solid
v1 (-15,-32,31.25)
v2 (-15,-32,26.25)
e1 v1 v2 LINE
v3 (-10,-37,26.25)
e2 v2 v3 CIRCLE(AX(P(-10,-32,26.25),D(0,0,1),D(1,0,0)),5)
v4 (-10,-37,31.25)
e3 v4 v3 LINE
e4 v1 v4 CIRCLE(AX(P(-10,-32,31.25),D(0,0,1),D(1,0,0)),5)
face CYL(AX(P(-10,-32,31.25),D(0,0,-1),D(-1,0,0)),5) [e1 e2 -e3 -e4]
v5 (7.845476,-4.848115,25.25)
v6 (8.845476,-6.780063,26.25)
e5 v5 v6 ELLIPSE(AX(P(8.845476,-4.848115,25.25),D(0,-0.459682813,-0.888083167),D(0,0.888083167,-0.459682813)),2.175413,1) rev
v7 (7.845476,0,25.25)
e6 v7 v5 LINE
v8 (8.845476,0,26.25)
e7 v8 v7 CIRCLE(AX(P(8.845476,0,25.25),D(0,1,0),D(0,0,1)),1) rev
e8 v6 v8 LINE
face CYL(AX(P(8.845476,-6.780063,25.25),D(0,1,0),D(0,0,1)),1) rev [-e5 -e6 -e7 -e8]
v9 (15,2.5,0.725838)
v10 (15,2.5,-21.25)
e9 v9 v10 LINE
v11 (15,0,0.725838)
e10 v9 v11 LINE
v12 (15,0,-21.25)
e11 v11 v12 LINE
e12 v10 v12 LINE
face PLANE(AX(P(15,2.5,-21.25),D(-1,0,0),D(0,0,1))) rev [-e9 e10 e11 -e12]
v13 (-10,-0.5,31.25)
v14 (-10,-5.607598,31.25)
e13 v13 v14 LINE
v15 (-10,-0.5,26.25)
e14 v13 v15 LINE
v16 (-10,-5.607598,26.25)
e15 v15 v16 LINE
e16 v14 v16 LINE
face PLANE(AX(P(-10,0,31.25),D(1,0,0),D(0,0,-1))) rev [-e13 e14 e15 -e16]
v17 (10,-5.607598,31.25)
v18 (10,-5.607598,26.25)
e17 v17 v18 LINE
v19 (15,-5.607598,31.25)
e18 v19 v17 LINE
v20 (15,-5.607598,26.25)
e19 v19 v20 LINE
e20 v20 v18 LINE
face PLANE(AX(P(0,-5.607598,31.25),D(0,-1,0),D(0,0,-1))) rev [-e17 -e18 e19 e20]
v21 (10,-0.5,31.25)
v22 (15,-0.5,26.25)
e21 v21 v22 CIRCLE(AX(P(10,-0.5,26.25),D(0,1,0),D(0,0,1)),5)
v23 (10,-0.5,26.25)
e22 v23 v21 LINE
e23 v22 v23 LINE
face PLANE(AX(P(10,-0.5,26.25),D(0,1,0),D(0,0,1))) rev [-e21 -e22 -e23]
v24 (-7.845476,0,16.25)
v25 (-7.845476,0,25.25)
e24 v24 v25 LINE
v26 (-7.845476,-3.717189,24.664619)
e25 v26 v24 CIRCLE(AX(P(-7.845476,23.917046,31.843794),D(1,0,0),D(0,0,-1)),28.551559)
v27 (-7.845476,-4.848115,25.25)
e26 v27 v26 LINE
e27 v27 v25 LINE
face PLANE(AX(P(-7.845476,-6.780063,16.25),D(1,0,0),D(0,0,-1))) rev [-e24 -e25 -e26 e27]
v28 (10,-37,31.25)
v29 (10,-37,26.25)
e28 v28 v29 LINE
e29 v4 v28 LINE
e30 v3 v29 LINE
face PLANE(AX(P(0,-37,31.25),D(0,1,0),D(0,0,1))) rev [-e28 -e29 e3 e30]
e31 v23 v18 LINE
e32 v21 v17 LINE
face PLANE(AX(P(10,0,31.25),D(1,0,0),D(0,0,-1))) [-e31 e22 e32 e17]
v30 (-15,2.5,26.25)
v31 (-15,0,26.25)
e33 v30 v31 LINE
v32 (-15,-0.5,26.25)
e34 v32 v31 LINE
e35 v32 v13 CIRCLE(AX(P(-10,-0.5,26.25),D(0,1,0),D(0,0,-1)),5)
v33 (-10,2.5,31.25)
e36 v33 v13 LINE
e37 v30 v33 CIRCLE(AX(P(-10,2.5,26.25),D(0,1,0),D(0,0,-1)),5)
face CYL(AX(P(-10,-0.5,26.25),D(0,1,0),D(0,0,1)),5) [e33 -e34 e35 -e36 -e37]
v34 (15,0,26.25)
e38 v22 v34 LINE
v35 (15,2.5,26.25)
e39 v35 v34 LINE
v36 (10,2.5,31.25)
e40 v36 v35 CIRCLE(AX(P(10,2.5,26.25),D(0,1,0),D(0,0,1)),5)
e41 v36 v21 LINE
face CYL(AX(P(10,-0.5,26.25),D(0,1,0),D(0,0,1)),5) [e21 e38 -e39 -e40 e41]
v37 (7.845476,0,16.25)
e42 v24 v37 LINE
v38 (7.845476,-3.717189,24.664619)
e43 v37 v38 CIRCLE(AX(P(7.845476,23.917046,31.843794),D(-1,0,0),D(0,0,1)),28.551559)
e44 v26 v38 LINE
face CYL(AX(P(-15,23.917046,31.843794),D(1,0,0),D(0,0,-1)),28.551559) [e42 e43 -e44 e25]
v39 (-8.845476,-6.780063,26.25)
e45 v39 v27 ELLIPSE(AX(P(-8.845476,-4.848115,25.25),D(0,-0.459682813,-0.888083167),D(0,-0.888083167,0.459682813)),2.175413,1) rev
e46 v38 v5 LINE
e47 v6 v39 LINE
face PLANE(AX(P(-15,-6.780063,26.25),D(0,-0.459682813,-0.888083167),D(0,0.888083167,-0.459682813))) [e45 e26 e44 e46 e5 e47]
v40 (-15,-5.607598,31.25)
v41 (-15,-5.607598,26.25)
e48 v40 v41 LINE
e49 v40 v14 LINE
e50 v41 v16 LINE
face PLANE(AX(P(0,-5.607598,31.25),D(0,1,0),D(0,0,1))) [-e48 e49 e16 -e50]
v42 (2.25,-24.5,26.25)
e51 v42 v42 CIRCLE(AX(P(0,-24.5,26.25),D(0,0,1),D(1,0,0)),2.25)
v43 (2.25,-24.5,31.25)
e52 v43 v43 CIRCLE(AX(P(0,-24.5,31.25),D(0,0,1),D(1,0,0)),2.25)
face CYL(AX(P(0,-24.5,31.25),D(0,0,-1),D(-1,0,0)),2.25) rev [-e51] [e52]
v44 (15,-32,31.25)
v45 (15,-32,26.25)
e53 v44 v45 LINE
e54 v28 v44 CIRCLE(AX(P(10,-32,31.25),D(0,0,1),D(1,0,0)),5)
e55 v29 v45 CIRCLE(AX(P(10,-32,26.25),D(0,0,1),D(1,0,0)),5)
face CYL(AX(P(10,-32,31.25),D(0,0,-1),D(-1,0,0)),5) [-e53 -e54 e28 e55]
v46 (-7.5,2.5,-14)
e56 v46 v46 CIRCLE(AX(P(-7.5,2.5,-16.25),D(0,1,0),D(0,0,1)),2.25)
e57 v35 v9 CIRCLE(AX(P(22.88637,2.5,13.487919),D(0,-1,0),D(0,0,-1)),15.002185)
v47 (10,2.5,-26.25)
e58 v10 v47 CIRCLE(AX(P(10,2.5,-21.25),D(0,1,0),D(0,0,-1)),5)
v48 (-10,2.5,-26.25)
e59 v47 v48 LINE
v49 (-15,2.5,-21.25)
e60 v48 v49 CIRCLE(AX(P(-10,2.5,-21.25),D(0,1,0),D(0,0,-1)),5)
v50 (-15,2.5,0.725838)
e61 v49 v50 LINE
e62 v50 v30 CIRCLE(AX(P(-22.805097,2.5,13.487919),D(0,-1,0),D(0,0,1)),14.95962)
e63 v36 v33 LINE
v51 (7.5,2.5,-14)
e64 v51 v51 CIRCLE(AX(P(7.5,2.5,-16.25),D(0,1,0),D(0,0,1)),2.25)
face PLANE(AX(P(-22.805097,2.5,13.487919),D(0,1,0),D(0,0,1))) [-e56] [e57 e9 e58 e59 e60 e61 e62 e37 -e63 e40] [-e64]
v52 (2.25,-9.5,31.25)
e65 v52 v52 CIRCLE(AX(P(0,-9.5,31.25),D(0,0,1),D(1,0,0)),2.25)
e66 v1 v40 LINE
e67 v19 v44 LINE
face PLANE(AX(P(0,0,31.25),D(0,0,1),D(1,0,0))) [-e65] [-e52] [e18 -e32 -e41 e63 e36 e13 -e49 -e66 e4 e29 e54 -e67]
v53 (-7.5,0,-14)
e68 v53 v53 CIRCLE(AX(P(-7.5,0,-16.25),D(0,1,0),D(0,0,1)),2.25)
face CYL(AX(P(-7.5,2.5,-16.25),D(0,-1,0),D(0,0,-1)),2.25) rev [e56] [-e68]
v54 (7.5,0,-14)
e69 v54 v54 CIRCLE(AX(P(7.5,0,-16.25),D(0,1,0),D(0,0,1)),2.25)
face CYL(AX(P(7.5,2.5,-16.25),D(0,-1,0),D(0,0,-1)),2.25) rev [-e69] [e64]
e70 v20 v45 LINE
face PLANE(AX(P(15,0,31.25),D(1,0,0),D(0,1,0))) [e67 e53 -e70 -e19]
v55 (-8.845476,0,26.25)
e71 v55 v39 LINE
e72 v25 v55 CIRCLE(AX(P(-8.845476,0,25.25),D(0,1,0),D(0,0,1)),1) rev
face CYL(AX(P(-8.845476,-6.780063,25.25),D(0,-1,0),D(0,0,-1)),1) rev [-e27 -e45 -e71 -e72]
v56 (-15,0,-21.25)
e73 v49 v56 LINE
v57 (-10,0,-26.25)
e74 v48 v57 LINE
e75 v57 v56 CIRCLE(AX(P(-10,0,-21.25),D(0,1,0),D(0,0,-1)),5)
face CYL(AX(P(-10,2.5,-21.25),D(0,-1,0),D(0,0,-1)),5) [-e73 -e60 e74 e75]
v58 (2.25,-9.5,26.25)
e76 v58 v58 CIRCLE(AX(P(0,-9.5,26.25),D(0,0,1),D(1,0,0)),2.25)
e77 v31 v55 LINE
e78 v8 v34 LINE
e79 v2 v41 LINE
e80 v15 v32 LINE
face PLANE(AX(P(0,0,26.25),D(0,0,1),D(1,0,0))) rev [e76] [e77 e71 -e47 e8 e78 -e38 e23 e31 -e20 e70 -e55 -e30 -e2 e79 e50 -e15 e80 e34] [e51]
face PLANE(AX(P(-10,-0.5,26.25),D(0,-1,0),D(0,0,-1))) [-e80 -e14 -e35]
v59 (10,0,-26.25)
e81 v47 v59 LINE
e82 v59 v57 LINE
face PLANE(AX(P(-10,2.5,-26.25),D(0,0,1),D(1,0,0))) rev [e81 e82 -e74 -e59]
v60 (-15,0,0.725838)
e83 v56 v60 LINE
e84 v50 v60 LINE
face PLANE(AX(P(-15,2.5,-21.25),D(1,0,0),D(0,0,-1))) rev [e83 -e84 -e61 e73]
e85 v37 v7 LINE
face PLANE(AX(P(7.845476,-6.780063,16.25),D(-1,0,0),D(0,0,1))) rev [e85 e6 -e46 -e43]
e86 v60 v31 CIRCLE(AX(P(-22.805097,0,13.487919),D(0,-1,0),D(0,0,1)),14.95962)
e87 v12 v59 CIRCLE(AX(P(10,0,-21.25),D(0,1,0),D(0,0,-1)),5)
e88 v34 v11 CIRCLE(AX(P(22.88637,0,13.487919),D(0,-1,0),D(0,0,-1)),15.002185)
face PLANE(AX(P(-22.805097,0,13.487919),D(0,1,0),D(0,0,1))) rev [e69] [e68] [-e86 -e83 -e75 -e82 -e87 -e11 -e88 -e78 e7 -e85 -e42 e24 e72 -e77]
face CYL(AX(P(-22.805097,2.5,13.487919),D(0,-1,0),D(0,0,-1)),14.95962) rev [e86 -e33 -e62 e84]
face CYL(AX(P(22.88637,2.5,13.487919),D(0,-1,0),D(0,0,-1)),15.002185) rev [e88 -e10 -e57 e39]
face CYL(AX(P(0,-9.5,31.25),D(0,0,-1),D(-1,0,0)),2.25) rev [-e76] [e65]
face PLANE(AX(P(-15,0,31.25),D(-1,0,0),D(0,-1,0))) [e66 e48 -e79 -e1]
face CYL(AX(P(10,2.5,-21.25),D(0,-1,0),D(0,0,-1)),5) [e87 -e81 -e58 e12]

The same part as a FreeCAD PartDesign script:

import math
import FreeCAD as App
import Part
import Sketcher

V = App.Vector
Q = App.Units.Quantity


def edges_at(feature, points):
    """Names of the edges that pass closest to the given points."""
    edges = feature.Shape.Edges
    near = lambda p: min(range(len(edges)), key=lambda i: edges[i].distToShape(Part.Vertex(*p))[0])
    return sorted({f"Edge{near(p) + 1}" for p in points})


def add_polygon(sketch, points):
    """Adds a closed chain of lines whose ends are joined by coincident constraints."""
    first, n = sketch.GeometryCount, len(points)
    for a, b in zip(points, points[1:] + points[:1]):
        sketch.addGeometry(Part.LineSegment(App.Vector(*a, 0), App.Vector(*b, 0)), False)
    for i in range(n):
        sketch.addConstraint(Sketcher.Constraint("Coincident", first + i, 2, first + (i + 1) % n, 1))

doc = App.newDocument("Part")
body = doc.addObject("PartDesign::Body", "Body")

# Sketch on XZ plane
sketch1 = body.newObject("Sketcher::SketchObject", "Sketch")
sketch1.AttachmentSupport = (doc.getObject("XZ_Plane"), [""])
sketch1.MapMode = "FlatFace"
sketch1.addGeometry([
    Part.LineSegment(V(15, 0.7, 0), V(15, -21.2, 0)),  # 0
    Part.ArcOfCircle(Part.Circle(V(10, -21.2, 0), V(0, 0, 1), 5), math.radians(-90), math.radians(0)),  # 1
    Part.LineSegment(V(10, -26.2, 0), V(-10, -26.2, 0)),  # 2
    Part.ArcOfCircle(Part.Circle(V(-10, -21.2, 0), V(0, 0, 1), 5), math.radians(180), math.radians(270)),  # 3
    Part.LineSegment(V(-15, -21.2, 0), V(-15, 0.7, 0)),  # 4
    Part.ArcOfCircle(Part.Circle(V(-22.8, 13.5, 0), V(0, 0, 1), 15), math.radians(-59), math.radians(59)),  # 5
    Part.LineSegment(V(-15, 26.2, 0), V(15, 26.2, 0)),  # 6
    Part.ArcOfCircle(Part.Circle(V(22.9, 13.5, 0), V(0, 0, 1), 15), math.radians(122), math.radians(238)),  # 7
    Part.Circle(V(7.5, -16.2, 0), V(0, 0, 1), 2.2),  # 8
    Part.Circle(V(-7.5, -16.2, 0), V(0, 0, 1), 2.2),  # 9
], False)
sketch1.addConstraint([
    Sketcher.Constraint("Tangent", 0, 2, 1, 2),
    Sketcher.Constraint("Tangent", 1, 1, 2, 1),
    Sketcher.Constraint("Tangent", 2, 2, 3, 2),
    Sketcher.Constraint("Tangent", 3, 1, 4, 1),
    Sketcher.Constraint("Coincident", 4, 2, 5, 1),
    Sketcher.Constraint("Coincident", 5, 2, 6, 1),
    Sketcher.Constraint("Coincident", 6, 2, 7, 1),
    Sketcher.Constraint("Coincident", 7, 2, 0, 1),
    Sketcher.Constraint("Vertical", 0),
    Sketcher.Constraint("Horizontal", 2),
    Sketcher.Constraint("Vertical", 4),
    Sketcher.Constraint("Horizontal", 6),
    Sketcher.Constraint("Equal", 1, 3),
    Sketcher.Constraint("Equal", 8, 9),
    Sketcher.Constraint("Symmetric", 8, 3, 9, 3, -2),
    Sketcher.Constraint("Symmetric", 4, 2, 7, 2, -2),
    Sketcher.Constraint("Horizontal", 5, 3, 7, 3),
    Sketcher.Constraint("Vertical", 4, 2, 5, 2),
    Sketcher.Constraint("Radius", 1, Q("5 mm")),
    Sketcher.Constraint("Diameter", 8, Q("4.5 mm")),
    Sketcher.Constraint("DistanceX", 2, 2, 2, 1, Q("20 mm")),
    Sketcher.Constraint("DistanceY", 1, 3, 8, 3, Q("5 mm")),
    Sketcher.Constraint("DistanceX", 9, 3, 8, 3, Q("15 mm")),
    Sketcher.Constraint("DistanceY", 9, 3, 5, 2, Q("42.5 mm")),
    Sketcher.Constraint("DistanceY", 1, 3, -1, 1, Q("21.25 mm")),
    Sketcher.Constraint("Radius", 5, Q("14.95962 mm")),
    Sketcher.Constraint("Radius", 7, Q("15.002185 mm")),
    Sketcher.Constraint("DistanceY", 0, 2, 0, 1, Q("21.975838 mm")),
])
pad1 = body.newObject("PartDesign::Pad", "Pad")
pad1.Profile = sketch1
pad1.Length = 2.5
pad1.Reversed = True

# Sketch on XY plane
sketch2 = body.newObject("Sketcher::SketchObject", "Sketch001")
sketch2.AttachmentSupport = (doc.getObject("XY_Plane"), [""])
sketch2.MapMode = "FlatFace"
sketch2.AttachmentOffset = App.Placement(V(0, 0, 26.25), App.Rotation())
sketch2.addGeometry([
    Part.LineSegment(V(10, -5.6, 0), V(10, 2.5, 0)),  # 0
    Part.LineSegment(V(10, 2.5, 0), V(-10, 2.5, 0)),  # 1
    Part.LineSegment(V(-10, 2.5, 0), V(-10, -5.6, 0)),  # 2
    Part.LineSegment(V(-10, -5.6, 0), V(-15, -5.6, 0)),  # 3
    Part.LineSegment(V(-15, -5.6, 0), V(-15, -32, 0)),  # 4
    Part.ArcOfCircle(Part.Circle(V(-10, -32, 0), V(0, 0, 1), 5), math.radians(180), math.radians(270)),  # 5
    Part.LineSegment(V(-10, -37, 0), V(10, -37, 0)),  # 6
    Part.ArcOfCircle(Part.Circle(V(10, -32, 0), V(0, 0, 1), 5), math.radians(-90), math.radians(0)),  # 7
    Part.LineSegment(V(15, -32, 0), V(15, -5.6, 0)),  # 8
    Part.LineSegment(V(15, -5.6, 0), V(10, -5.6, 0)),  # 9
    Part.Circle(V(0, -24.5, 0), V(0, 0, 1), 2.2),  # 10
    Part.Circle(V(0, -9.5, 0), V(0, 0, 1), 2.2),  # 11
], False)
sketch2.addConstraint([
    Sketcher.Constraint("Coincident", 0, 2, 1, 1),
    Sketcher.Constraint("Coincident", 1, 2, 2, 1),
    Sketcher.Constraint("Coincident", 2, 2, 3, 1),
    Sketcher.Constraint("Coincident", 3, 2, 4, 1),
    Sketcher.Constraint("Tangent", 4, 2, 5, 1),
    Sketcher.Constraint("Tangent", 5, 2, 6, 1),
    Sketcher.Constraint("Tangent", 6, 2, 7, 1),
    Sketcher.Constraint("Tangent", 7, 2, 8, 1),
    Sketcher.Constraint("Coincident", 8, 2, 9, 1),
    Sketcher.Constraint("Coincident", 9, 2, 0, 1),
    Sketcher.Constraint("Vertical", 0),
    Sketcher.Constraint("Horizontal", 1),
    Sketcher.Constraint("Vertical", 2),
    Sketcher.Constraint("Horizontal", 3),
    Sketcher.Constraint("Vertical", 4),
    Sketcher.Constraint("Horizontal", 6),
    Sketcher.Constraint("Vertical", 8),
    Sketcher.Constraint("Horizontal", 9),
    Sketcher.Constraint("Equal", 5, 7),
    Sketcher.Constraint("Equal", 10, 11),
    Sketcher.Constraint("Symmetric", 3, 2, 8, 2, -2),
    Sketcher.Constraint("PointOnObject", 10, 3, -2),
    Sketcher.Constraint("PointOnObject", 11, 3, -2),
    Sketcher.Constraint("Vertical", 7, 3, 0, 2),
    Sketcher.Constraint("Vertical", 5, 3, 1, 2),
    Sketcher.Constraint("Radius", 5, Q("5 mm")),
    Sketcher.Constraint("Diameter", 10, Q("4.5 mm")),
    Sketcher.Constraint("DistanceX", 1, 2, 1, 1, Q("20 mm")),
    Sketcher.Constraint("DistanceY", 5, 3, -1, 1, Q("32 mm")),
    Sketcher.Constraint("DistanceY", 10, 3, 11, 3, Q("15 mm")),
    Sketcher.Constraint("DistanceY", 11, 3, 0, 2, Q("12 mm")),
    Sketcher.Constraint("DistanceY", 10, 3, -1, 1, Q("24.5 mm")),
    Sketcher.Constraint("DistanceY", 0, 1, 0, 2, Q("8.107598 mm")),
])
pad2 = body.newObject("PartDesign::Pad", "Pad001")
pad2.Profile = sketch2
pad2.Length = 5

# Sketch on XZ plane
sketch3 = body.newObject("Sketcher::SketchObject", "Sketch002")
sketch3.AttachmentSupport = (doc.getObject("XZ_Plane"), [""])
sketch3.MapMode = "FlatFace"
sketch3.AttachmentOffset = App.Placement(V(0, 0, -2.5), App.Rotation())
sketch3.addGeometry([
    Part.LineSegment(V(10, 26, 0), V(10, 31, 0)),  # 0
    Part.ArcOfCircle(Part.Circle(V(10, 26, 0), V(0, 0, 1), 5), math.radians(0), math.radians(90)),  # 1
    Part.LineSegment(V(15, 26, 0), V(10, 26, 0)),  # 2
    Part.LineSegment(V(-10, 31, 0), V(-10, 26, 0)),  # 3
    Part.LineSegment(V(-10, 26, 0), V(-15, 26, 0)),  # 4
    Part.ArcOfCircle(Part.Circle(V(-10, 26, 0), V(0, 0, 1), 5), math.radians(90), math.radians(180)),  # 5
], False)
sketch3.addConstraint([
    Sketcher.Constraint("Coincident", 0, 2, 1, 2),
    Sketcher.Constraint("Coincident", 1, 1, 2, 1),
    Sketcher.Constraint("Coincident", 2, 2, 0, 1),
    Sketcher.Constraint("Coincident", 3, 2, 4, 1),
    Sketcher.Constraint("Coincident", 4, 2, 5, 2),
    Sketcher.Constraint("Coincident", 5, 1, 3, 1),
    Sketcher.Constraint("Vertical", 0),
    Sketcher.Constraint("Horizontal", 2),
    Sketcher.Constraint("Vertical", 3),
    Sketcher.Constraint("Horizontal", 4),
    Sketcher.Constraint("Coincident", 2, 2, 1, 3),
    Sketcher.Constraint("Coincident", 3, 2, 5, 3),
    Sketcher.Constraint("Equal", 1, 5),
    Sketcher.Constraint("Symmetric", 1, 3, 5, 3, -2),
    Sketcher.Constraint("Radius", 1, Q("5 mm")),
    Sketcher.Constraint("DistanceX", -1, 1, 1, 3, Q("10 mm")),
    Sketcher.Constraint("DistanceY", -1, 1, 1, 3, Q("26.25 mm")),
])
pad3 = body.newObject("PartDesign::Pad", "Pad002")
pad3.Profile = sketch3
pad3.Length = 3

# Sketch on XY plane
sketch4 = body.newObject("Sketcher::SketchObject", "Sketch003")
sketch4.AttachmentSupport = (doc.getObject("XY_Plane"), [""])
sketch4.MapMode = "FlatFace"
sketch4.AttachmentOffset = App.Placement(V(0, 0, 26.25), App.Rotation())
add_polygon(sketch4, [(8, 0), (8, -7), (-8, -7), (-8, 0)])  # lines 0-3
sketch4.addConstraint([
    Sketcher.Constraint("Vertical", 0),
    Sketcher.Constraint("Horizontal", 1),
    Sketcher.Constraint("Vertical", 2),
    Sketcher.Constraint("Horizontal", 3),
    Sketcher.Constraint("Symmetric", 2, 2, 3, 2, -1, 1),
    Sketcher.Constraint("DistanceX", 1, 2, 1, 1, Q("15.690952 mm")),
    Sketcher.Constraint("DistanceY", 0, 2, 0, 1, Q("6.780063 mm")),
])
pad4 = body.newObject("PartDesign::Pad", "Pad003")
pad4.Profile = sketch4
pad4.Length = 10
pad4.Reversed = True

# Sketch on YZ plane
sketch5 = body.newObject("Sketcher::SketchObject", "Sketch004")
sketch5.AttachmentSupport = (doc.getObject("YZ_Plane"), [""])
sketch5.MapMode = "FlatFace"
sketch5.AttachmentOffset = App.Placement(V(0, 0, 7.845476), App.Rotation())
sketch5.addGeometry([
    Part.LineSegment(V(-3.7, 24.7, 0), V(-6.8, 26.2, 0)),
    Part.LineSegment(V(-6.8, 26.2, 0), V(-6.8, 16.2, 0)),
    Part.LineSegment(V(-6.8, 16.2, 0), V(0, 16.2, 0)),
    Part.ArcOfCircle(Part.Circle(V(23.9, 31.8, 0), V(0, 0, 1), 28.6), math.radians(-165.44), math.radians(-146.9)),
], False)
sketch5.addConstraint([
    Sketcher.Constraint("Coincident", 0, 2, 1, 1),
    Sketcher.Constraint("Coincident", 1, 2, 2, 1),
    Sketcher.Constraint("Coincident", 2, 2, 3, 2),
    Sketcher.Constraint("Coincident", 3, 1, 0, 1),
    Sketcher.Constraint("Vertical", 1),
    Sketcher.Constraint("Horizontal", 2),
    Sketcher.Constraint("PointOnObject", 2, 2, -2),
    Sketcher.Constraint("DistanceY", 1, 2, 1, 1, Q("10 mm")),
    Sketcher.Constraint("DistanceY", -1, 1, 0, 2, Q("26.25 mm")),
    Sketcher.Constraint("Radius", 3, Q("28.551559 mm")),
    Sketcher.Constraint("Distance", 0, Q("3.448859 mm")),
    Sketcher.Constraint("DistanceX", 2, 1, 2, 2, Q("6.780063 mm")),
    Sketcher.Constraint("DistanceX", 3, 1, -1, 1, Q("3.717189 mm")),
])
pocket1 = body.newObject("PartDesign::Pocket", "Pocket")
pocket1.Profile = sketch5
pocket1.Type = "ThroughAll"
pocket1.Midplane = True
doc.recompute()

fillet = body.newObject("PartDesign::Fillet", "Fillet")
fillet.Base = (pocket1, edges_at(pocket1, [(-7.845, -3.39, 26.25), (7.845, -3.39, 26.25)]))
fillet.Radius = 1

doc.recompute()
